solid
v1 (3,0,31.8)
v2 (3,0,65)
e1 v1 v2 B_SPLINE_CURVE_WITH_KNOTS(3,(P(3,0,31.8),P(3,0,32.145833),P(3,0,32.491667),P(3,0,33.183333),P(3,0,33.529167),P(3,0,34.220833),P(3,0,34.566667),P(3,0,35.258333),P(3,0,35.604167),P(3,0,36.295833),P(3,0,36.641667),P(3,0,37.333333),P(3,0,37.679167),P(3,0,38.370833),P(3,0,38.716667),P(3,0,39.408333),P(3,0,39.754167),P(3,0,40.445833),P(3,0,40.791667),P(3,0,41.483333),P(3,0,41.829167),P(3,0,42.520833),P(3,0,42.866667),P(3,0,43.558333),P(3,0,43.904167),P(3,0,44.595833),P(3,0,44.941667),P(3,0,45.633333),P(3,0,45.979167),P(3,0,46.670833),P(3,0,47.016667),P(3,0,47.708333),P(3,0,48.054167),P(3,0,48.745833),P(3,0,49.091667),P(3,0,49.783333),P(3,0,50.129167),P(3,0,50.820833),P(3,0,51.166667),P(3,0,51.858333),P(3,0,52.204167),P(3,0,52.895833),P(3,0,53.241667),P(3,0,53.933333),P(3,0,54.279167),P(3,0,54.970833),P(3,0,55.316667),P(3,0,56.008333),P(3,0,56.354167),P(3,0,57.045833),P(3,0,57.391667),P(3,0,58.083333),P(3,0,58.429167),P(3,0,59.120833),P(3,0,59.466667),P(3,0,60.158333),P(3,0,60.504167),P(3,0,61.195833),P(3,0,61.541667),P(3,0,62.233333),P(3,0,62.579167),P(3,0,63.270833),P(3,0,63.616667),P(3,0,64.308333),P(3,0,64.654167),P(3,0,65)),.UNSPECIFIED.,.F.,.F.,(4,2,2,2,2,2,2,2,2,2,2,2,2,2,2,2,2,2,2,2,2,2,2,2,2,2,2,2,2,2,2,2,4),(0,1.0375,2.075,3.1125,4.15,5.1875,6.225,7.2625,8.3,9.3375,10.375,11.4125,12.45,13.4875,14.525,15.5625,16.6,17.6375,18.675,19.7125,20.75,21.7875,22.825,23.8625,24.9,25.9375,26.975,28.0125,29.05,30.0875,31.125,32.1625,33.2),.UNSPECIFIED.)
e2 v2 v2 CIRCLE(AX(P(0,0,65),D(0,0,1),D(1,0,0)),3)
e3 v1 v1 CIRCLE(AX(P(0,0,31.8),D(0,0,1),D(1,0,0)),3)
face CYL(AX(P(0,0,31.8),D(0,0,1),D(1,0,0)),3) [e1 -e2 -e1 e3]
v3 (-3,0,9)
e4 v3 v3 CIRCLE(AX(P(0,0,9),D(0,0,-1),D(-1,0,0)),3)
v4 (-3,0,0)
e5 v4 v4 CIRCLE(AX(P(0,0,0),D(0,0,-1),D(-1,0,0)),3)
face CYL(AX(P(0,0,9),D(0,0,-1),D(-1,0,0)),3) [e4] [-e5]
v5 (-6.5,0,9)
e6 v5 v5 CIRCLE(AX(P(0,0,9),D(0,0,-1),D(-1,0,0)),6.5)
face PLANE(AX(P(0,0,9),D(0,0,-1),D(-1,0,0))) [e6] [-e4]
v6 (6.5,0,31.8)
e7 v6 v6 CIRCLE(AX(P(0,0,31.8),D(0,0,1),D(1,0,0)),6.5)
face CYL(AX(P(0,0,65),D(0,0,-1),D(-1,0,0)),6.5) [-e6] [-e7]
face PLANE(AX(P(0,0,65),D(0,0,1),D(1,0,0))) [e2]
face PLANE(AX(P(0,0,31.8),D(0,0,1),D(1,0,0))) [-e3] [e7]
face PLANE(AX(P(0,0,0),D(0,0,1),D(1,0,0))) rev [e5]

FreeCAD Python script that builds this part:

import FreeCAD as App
import Part
import Sketcher

V = App.Vector
Q = App.Units.Quantity

doc = App.newDocument("Part")
body = doc.addObject("PartDesign::Body", "Body")

# Sketch on XY plane
sketch1 = body.newObject("Sketcher::SketchObject", "Sketch")
sketch1.AttachmentSupport = (doc.getObject("XY_Plane"), [""])
sketch1.MapMode = "FlatFace"
sketch1.addGeometry(Part.Circle(V(0, 0, 0), V(0, 0, 1), 6), False)
sketch1.addConstraint(Sketcher.Constraint("Coincident", 0, 3, -1, 1))
sketch1.addConstraint(Sketcher.Constraint("Diameter", 0, Q("13 mm")))
pad1 = body.newObject("PartDesign::Pad", "Pad")
pad1.Profile = sketch1
pad1.Length = 65

# Sketch on XY plane
sketch2 = body.newObject("Sketcher::SketchObject", "Sketch001")
sketch2.AttachmentSupport = (doc.getObject("XY_Plane"), [""])
sketch2.MapMode = "FlatFace"
sketch2.AttachmentOffset = App.Placement(V(0, 0, 31.8), App.Rotation())
sketch2.addGeometry(Part.Circle(V(0, 0, 0), V(0, 0, 1), 6.5), False)
sketch2.addGeometry(Part.Circle(V(0, 0, 0), V(0, 0, 1), 3), False)
sketch2.addConstraint(Sketcher.Constraint("Coincident", 0, 3, -1, 1))
sketch2.addConstraint(Sketcher.Constraint("Coincident", 1, 3, -1, 1))
sketch2.addConstraint(Sketcher.Constraint("Diameter", 0, Q("13 mm")))
sketch2.addConstraint(Sketcher.Constraint("Diameter", 1, Q("6 mm")))
pocket1 = body.newObject("PartDesign::Pocket", "Pocket")
pocket1.Profile = sketch2
pocket1.Length = 33.2
pocket1.Reversed = True

# Sketch on XY plane
sketch3 = body.newObject("Sketcher::SketchObject", "Sketch002")
sketch3.AttachmentSupport = (doc.getObject("XY_Plane"), [""])
sketch3.MapMode = "FlatFace"
sketch3.addGeometry(Part.Circle(V(0, 0, 0), V(0, 0, 1), 6.5), False)
sketch3.addGeometry(Part.Circle(V(0, 0, 0), V(0, 0, 1), 3), False)
sketch3.addConstraint(Sketcher.Constraint("Coincident", 0, 3, -1, 1))
sketch3.addConstraint(Sketcher.Constraint("Coincident", 1, 3, -1, 1))
sketch3.addConstraint(Sketcher.Constraint("Diameter", 0, Q("13 mm")))
sketch3.addConstraint(Sketcher.Constraint("Diameter", 1, Q("6 mm")))
pocket2 = body.newObject("PartDesign::Pocket", "Pocket001")
pocket2.Profile = sketch3
pocket2.Length = 9
pocket2.Reversed = True

doc.recompute()
